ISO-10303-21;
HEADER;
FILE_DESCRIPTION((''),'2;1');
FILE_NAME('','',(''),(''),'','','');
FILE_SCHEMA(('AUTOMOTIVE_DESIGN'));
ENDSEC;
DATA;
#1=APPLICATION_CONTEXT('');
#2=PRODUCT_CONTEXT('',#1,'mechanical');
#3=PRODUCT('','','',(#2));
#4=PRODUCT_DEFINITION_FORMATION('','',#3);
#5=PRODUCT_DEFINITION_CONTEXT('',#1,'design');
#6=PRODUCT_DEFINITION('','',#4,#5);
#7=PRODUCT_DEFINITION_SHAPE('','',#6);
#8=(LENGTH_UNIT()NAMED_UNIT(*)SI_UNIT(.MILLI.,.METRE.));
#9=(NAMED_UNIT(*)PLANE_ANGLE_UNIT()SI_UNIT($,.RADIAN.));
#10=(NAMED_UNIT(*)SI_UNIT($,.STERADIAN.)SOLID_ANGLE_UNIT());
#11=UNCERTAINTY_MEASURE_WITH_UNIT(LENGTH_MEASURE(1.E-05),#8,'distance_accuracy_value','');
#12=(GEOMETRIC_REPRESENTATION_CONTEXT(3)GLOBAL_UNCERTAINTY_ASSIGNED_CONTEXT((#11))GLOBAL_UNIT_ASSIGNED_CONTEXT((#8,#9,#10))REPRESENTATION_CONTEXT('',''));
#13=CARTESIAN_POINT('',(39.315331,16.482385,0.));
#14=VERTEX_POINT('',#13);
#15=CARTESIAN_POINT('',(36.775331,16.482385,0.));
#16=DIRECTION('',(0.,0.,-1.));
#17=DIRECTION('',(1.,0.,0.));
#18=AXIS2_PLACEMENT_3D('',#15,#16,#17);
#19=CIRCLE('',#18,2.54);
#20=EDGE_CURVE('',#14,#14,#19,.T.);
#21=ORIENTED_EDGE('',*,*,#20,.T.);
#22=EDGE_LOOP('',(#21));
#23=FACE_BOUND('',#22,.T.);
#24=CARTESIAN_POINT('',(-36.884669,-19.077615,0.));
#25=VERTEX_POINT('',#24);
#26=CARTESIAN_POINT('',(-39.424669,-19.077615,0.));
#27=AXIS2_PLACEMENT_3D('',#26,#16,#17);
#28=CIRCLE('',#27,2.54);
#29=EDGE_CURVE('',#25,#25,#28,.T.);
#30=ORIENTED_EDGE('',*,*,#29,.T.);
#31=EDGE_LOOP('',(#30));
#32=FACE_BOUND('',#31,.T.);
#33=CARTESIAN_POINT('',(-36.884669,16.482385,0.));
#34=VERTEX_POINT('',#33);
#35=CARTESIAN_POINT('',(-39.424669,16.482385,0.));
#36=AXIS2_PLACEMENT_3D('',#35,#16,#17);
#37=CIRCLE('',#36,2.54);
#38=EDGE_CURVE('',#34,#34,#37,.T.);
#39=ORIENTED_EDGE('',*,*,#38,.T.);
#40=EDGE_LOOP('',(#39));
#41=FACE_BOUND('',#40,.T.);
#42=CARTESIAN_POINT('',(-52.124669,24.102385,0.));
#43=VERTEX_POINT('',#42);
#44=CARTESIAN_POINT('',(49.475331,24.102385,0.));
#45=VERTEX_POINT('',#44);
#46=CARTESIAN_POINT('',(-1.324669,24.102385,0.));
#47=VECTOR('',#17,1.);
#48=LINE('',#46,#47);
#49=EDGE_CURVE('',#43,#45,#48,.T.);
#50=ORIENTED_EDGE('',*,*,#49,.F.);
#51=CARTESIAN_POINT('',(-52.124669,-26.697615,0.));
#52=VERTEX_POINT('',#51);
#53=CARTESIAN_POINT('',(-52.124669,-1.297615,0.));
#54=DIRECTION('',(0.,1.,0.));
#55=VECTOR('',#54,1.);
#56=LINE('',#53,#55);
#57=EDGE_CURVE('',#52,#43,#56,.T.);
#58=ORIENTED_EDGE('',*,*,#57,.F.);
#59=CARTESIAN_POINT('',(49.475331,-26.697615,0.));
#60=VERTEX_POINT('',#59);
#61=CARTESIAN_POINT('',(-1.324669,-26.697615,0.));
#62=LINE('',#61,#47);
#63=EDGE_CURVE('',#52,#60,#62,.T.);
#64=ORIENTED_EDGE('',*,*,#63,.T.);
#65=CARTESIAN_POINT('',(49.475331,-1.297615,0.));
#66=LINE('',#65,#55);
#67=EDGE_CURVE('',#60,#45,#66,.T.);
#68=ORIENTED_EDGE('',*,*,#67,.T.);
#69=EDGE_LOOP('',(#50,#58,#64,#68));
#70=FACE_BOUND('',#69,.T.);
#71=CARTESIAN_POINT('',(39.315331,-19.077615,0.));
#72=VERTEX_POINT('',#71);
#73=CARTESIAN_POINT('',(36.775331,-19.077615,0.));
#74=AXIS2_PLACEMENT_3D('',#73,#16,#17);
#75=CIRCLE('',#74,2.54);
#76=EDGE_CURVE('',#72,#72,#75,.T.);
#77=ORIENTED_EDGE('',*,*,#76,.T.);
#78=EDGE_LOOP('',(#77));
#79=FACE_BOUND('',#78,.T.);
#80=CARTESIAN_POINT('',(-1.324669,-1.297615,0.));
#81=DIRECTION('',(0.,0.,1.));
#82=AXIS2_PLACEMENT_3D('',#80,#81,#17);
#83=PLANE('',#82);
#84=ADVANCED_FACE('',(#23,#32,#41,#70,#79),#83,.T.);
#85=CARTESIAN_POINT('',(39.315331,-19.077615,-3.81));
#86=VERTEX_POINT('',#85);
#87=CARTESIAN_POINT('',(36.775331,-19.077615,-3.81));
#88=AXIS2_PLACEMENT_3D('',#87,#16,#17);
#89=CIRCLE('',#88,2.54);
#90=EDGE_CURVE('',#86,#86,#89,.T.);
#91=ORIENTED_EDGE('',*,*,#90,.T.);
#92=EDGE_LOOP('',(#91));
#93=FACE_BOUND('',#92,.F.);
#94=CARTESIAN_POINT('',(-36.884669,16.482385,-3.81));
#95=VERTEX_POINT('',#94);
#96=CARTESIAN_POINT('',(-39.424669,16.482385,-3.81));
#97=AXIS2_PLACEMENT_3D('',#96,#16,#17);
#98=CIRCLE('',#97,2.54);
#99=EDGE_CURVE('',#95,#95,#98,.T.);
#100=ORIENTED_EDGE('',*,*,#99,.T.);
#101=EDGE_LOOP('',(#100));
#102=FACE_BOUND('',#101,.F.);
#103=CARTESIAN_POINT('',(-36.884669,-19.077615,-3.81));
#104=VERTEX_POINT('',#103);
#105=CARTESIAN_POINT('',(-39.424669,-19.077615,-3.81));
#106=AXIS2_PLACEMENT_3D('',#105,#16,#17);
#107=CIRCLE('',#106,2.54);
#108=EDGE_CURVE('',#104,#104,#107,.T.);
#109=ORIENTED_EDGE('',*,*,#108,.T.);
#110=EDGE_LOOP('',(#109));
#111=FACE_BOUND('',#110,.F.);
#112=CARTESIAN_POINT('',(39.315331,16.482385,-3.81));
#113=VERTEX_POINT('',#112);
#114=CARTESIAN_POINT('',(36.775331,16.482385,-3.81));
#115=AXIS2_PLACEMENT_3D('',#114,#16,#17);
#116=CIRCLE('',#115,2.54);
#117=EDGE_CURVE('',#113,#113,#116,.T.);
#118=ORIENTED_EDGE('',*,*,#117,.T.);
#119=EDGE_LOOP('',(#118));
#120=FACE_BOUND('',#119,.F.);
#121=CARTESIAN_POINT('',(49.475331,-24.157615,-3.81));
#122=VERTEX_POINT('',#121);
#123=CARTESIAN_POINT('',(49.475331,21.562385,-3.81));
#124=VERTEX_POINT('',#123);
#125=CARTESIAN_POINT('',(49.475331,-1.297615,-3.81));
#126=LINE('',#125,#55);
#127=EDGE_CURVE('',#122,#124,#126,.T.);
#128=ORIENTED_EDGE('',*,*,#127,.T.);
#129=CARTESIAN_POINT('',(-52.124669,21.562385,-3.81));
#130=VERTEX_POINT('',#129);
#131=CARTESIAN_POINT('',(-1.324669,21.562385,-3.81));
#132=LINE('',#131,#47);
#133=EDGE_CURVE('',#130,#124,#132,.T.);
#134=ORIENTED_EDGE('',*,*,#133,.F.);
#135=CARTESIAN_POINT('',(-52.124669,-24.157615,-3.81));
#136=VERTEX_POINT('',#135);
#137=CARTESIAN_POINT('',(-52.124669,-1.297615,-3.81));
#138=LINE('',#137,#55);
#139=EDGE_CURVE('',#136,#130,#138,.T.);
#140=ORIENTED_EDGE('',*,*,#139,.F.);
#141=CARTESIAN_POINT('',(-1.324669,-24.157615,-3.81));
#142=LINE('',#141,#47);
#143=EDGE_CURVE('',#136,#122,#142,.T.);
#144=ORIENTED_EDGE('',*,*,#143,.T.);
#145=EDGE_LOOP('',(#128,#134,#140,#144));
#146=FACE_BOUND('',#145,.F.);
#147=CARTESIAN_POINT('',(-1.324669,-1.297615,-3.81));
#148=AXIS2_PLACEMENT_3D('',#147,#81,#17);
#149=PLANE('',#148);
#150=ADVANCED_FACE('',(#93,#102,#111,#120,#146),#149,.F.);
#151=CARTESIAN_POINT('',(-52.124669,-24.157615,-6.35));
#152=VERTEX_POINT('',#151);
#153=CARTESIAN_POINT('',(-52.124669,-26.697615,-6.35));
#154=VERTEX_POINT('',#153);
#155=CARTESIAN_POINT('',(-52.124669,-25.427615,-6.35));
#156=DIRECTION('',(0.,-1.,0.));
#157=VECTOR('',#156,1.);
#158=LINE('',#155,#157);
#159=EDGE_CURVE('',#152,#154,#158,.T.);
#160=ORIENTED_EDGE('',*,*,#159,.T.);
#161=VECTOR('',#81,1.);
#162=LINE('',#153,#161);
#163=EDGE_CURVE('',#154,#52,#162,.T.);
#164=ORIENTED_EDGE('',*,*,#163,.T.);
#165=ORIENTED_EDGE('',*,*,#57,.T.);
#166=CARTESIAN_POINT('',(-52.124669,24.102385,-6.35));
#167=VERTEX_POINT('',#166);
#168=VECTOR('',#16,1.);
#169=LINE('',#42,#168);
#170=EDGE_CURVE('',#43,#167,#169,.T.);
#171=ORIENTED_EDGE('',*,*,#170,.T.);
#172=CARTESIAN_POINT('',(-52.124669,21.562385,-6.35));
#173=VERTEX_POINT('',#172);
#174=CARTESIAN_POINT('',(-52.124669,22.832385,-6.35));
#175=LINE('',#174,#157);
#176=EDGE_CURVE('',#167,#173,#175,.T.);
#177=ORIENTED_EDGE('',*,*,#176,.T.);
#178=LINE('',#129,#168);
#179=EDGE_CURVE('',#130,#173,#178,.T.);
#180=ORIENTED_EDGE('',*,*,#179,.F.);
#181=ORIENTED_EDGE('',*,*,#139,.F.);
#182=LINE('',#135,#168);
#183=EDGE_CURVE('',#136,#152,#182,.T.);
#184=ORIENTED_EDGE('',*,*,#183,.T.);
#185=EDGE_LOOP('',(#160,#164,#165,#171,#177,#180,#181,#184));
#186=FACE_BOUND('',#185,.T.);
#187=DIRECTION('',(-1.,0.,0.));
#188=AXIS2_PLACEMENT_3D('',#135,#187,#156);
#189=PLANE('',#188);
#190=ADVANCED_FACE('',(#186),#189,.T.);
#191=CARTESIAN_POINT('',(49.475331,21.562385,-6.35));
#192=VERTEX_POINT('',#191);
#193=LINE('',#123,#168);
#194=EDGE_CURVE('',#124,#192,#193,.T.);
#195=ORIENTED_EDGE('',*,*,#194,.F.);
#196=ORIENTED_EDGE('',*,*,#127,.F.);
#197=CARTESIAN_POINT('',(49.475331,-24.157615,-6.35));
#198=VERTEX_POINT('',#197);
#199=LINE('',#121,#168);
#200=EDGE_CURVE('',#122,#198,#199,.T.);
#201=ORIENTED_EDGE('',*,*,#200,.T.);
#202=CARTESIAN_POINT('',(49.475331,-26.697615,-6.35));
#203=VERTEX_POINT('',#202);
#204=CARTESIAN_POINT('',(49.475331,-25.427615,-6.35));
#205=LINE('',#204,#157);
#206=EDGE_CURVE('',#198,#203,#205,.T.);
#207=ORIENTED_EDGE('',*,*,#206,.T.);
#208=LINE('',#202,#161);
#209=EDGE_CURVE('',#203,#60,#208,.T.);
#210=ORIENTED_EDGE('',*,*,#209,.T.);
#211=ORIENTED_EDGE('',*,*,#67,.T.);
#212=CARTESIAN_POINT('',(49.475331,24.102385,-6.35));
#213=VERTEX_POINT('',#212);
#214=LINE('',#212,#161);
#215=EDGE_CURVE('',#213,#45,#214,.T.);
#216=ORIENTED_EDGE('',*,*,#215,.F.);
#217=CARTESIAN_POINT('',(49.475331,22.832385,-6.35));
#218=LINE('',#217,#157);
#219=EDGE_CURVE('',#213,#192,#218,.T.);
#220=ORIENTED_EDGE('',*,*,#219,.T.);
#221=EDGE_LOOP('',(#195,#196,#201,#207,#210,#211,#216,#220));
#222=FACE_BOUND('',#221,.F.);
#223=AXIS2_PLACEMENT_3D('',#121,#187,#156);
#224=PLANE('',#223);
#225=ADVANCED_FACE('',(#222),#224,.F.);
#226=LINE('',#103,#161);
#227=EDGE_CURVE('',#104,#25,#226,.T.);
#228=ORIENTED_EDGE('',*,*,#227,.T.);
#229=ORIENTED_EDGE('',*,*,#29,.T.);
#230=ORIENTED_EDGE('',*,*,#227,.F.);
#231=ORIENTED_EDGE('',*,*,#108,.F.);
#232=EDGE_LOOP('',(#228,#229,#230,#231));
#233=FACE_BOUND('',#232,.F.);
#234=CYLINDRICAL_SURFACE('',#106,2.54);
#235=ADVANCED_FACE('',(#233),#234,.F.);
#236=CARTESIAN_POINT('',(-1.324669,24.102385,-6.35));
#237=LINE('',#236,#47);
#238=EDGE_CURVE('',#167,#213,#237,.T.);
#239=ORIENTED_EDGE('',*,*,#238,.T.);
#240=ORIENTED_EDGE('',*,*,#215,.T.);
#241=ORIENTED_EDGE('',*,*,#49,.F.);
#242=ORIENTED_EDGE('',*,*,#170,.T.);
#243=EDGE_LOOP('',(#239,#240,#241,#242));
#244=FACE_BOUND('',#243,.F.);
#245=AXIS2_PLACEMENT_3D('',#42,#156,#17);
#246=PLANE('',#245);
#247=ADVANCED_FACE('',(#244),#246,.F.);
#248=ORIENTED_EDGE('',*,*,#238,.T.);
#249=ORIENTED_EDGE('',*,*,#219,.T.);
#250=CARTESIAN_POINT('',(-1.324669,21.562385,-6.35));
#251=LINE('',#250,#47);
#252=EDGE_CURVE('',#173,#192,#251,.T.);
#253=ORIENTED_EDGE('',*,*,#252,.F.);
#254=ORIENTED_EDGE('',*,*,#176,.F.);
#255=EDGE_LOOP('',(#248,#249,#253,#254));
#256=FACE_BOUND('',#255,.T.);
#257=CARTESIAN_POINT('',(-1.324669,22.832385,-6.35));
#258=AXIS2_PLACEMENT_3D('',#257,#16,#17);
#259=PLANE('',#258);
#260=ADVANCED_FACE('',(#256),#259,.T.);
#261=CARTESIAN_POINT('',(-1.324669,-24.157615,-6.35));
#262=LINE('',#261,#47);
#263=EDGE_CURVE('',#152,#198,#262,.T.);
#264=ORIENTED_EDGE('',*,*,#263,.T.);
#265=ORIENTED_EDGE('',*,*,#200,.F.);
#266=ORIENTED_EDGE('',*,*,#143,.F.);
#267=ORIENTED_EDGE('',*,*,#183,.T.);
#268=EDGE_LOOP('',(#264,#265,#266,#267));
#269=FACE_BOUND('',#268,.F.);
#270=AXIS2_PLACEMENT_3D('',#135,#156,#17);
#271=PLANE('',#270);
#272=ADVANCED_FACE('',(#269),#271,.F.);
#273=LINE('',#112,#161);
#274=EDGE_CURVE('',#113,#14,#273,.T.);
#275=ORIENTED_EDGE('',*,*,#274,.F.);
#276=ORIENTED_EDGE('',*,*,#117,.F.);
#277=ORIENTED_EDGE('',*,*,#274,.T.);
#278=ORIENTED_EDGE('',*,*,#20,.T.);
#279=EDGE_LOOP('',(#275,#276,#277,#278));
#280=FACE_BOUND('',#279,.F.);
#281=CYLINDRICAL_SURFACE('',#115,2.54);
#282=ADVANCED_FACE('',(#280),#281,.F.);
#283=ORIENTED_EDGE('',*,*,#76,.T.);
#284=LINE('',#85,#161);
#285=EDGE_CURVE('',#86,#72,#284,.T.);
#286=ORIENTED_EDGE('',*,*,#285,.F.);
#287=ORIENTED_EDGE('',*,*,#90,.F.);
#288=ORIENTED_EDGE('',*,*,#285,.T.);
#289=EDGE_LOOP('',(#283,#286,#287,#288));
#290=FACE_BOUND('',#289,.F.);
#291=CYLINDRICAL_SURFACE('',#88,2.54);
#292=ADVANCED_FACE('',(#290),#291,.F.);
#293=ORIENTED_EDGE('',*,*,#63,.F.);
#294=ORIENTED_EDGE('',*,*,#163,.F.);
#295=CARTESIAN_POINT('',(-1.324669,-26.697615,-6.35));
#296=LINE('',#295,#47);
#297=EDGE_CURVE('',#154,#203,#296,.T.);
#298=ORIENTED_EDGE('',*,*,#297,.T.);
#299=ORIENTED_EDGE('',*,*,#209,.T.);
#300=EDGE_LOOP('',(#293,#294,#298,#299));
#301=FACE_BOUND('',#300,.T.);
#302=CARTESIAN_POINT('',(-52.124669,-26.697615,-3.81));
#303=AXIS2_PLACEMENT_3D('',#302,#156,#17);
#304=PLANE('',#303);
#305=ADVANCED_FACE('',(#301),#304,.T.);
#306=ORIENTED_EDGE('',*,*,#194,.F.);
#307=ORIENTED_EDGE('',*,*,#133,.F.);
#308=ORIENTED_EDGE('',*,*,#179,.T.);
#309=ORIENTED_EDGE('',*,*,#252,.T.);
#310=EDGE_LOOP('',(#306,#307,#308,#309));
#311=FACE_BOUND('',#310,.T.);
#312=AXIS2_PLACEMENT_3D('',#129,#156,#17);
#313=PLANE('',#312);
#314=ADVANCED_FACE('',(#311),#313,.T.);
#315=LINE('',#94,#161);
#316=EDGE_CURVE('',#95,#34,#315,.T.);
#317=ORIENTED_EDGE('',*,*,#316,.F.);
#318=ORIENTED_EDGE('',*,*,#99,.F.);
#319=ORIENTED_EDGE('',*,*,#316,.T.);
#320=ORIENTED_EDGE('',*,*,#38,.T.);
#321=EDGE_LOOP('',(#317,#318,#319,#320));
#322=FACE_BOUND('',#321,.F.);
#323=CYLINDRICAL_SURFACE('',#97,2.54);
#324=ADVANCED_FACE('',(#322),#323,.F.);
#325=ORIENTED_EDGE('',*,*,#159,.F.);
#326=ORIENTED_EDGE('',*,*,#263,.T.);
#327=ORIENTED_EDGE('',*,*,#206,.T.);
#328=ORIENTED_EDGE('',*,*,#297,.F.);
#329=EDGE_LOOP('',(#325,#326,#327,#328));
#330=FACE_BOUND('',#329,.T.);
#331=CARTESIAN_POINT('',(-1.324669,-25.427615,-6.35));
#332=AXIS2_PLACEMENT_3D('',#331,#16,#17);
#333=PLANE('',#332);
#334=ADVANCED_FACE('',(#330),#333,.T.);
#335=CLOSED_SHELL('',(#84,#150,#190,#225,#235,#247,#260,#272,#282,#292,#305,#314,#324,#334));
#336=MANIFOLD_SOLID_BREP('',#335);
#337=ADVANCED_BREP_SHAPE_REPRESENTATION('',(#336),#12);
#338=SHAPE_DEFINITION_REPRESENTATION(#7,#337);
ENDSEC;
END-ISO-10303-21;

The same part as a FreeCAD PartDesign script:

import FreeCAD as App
import Part
import Sketcher
from FreeCAD import Vector
Q = App.Units.Quantity

doc = App.newDocument("Part")
body = doc.addObject("PartDesign::Body", "Body")

# Sketch on XY plane
sketch1 = body.newObject("Sketcher::SketchObject", "Sketch")
sketch1.AttachmentSupport = (doc.getObject("XY_Plane"), [""])
sketch1.MapMode = "FlatFace"
sketch1.addGeometry(Part.LineSegment(Vector(-52, 24, 0), Vector(-52, -27, 0)), False)
sketch1.addGeometry(Part.LineSegment(Vector(-52, -27, 0), Vector(49, -27, 0)), False)
sketch1.addGeometry(Part.LineSegment(Vector(49, -27, 0), Vector(49, 24, 0)), False)
sketch1.addGeometry(Part.LineSegment(Vector(49, 24, 0), Vector(-52, 24, 0)), False)
sketch1.addConstraint(Sketcher.Constraint("Coincident", 0, 2, 1, 1))
sketch1.addConstraint(Sketcher.Constraint("Coincident", 1, 2, 2, 1))
sketch1.addConstraint(Sketcher.Constraint("Coincident", 2, 2, 3, 1))
sketch1.addConstraint(Sketcher.Constraint("Coincident", 3, 2, 0, 1))
sketch1.addConstraint(Sketcher.Constraint("Vertical", 0))
sketch1.addConstraint(Sketcher.Constraint("Horizontal", 1))
sketch1.addConstraint(Sketcher.Constraint("Vertical", 2))
sketch1.addConstraint(Sketcher.Constraint("Horizontal", 3))
sketch1.addConstraint(Sketcher.Constraint("DistanceX", 1, 1, 1, 2, Q("4 in")))
sketch1.addConstraint(Sketcher.Constraint("DistanceY", 0, 2, 0, 1, Q("2 in")))
sketch1.addConstraint(Sketcher.Constraint("DistanceX", 0, 2, -1, 1, 52.124669))
sketch1.addConstraint(Sketcher.Constraint("DistanceY", 0, 2, -1, 1, 26.697615))
pad1 = body.newObject("PartDesign::Pad", "Pad")
pad1.Profile = sketch1
pad1.Length = Q("0.15 in")
pad1.Reversed = True

# Sketch on XY plane
sketch2 = body.newObject("Sketcher::SketchObject", "Sketch001")
sketch2.AttachmentSupport = (doc.getObject("XY_Plane"), [""])
sketch2.MapMode = "FlatFace"
sketch2.AttachmentOffset = App.Placement(Vector(0, 0, -0.15 * 25.4), App.Rotation())
sketch2.addGeometry(Part.LineSegment(Vector(-52.1, -26.7, 0), Vector(-52.1, -24.2, 0)), False)
sketch2.addGeometry(Part.LineSegment(Vector(-52.1, -24.2, 0), Vector(49.5, -24.2, 0)), False)
sketch2.addGeometry(Part.LineSegment(Vector(49.5, -24.2, 0), Vector(49.5, -26.7, 0)), False)
sketch2.addGeometry(Part.LineSegment(Vector(49.5, -26.7, 0), Vector(-52.1, -26.7, 0)), False)
sketch2.addGeometry(Part.LineSegment(Vector(-52.1, 21.6, 0), Vector(-52.1, 24.1, 0)), False)
sketch2.addGeometry(Part.LineSegment(Vector(-52.1, 24.1, 0), Vector(49.5, 24.1, 0)), False)
sketch2.addGeometry(Part.LineSegment(Vector(49.5, 24.1, 0), Vector(49.5, 21.6, 0)), False)
sketch2.addGeometry(Part.LineSegment(Vector(49.5, 21.6, 0), Vector(-52.1, 21.6, 0)), False)
sketch2.addConstraint(Sketcher.Constraint("Coincident", 0, 2, 1, 1))
sketch2.addConstraint(Sketcher.Constraint("Coincident", 1, 2, 2, 1))
sketch2.addConstraint(Sketcher.Constraint("Coincident", 2, 2, 3, 1))
sketch2.addConstraint(Sketcher.Constraint("Coincident", 3, 2, 0, 1))
sketch2.addConstraint(Sketcher.Constraint("Coincident", 4, 2, 5, 1))
sketch2.addConstraint(Sketcher.Constraint("Coincident", 5, 2, 6, 1))
sketch2.addConstraint(Sketcher.Constraint("Coincident", 6, 2, 7, 1))
sketch2.addConstraint(Sketcher.Constraint("Coincident", 7, 2, 4, 1))
sketch2.addConstraint(Sketcher.Constraint("Vertical", 0))
sketch2.addConstraint(Sketcher.Constraint("Horizontal", 1))
sketch2.addConstraint(Sketcher.Constraint("Vertical", 2))
sketch2.addConstraint(Sketcher.Constraint("Horizontal", 3))
sketch2.addConstraint(Sketcher.Constraint("Vertical", 4))
sketch2.addConstraint(Sketcher.Constraint("Horizontal", 5))
sketch2.addConstraint(Sketcher.Constraint("Vertical", 6))
sketch2.addConstraint(Sketcher.Constraint("Horizontal", 7))
sketch2.addConstraint(Sketcher.Constraint("Vertical", 3, 2, 4, 2))
sketch2.addConstraint(Sketcher.Constraint("Vertical", 2, 2, 5, 2))
sketch2.addConstraint(Sketcher.Constraint("Equal", 2, 4))
sketch2.addConstraint(Sketcher.Constraint("DistanceX", 1, 1, 1, 2, Q("4 in")))
sketch2.addConstraint(Sketcher.Constraint("DistanceY", 0, 1, 0, 2, Q("0.1 in")))
sketch2.addConstraint(Sketcher.Constraint("DistanceY", 3, 2, 4, 2, Q("2 in")))
sketch2.addConstraint(Sketcher.Constraint("DistanceX", 0, 2, -1, 1, 52.124669))
sketch2.addConstraint(Sketcher.Constraint("DistanceY", 0, 2, -1, 1, 24.157615))
pad2 = body.newObject("PartDesign::Pad", "Pad001")
pad2.Profile = sketch2
pad2.Length = Q("0.1 in")
pad2.Reversed = True

# Sketch on XY plane
sketch3 = body.newObject("Sketcher::SketchObject", "Sketch002")
sketch3.AttachmentSupport = (doc.getObject("XY_Plane"), [""])
sketch3.MapMode = "FlatFace"
sketch3.AttachmentOffset = App.Placement(Vector(0, 0, -0.15 * 25.4), App.Rotation())
sketch3.addGeometry(Part.Circle(Vector(-39.4, -19.1, 0), Vector(0, 0, 1), 2.5), False)
sketch3.addGeometry(Part.Circle(Vector(-39.4, 16.5, 0), Vector(0, 0, 1), 2.5), False)
sketch3.addGeometry(Part.Circle(Vector(36.8, -19.1, 0), Vector(0, 0, 1), 2.5), False)
sketch3.addGeometry(Part.Circle(Vector(36.8, 16.5, 0), Vector(0, 0, 1), 2.5), False)
sketch3.addConstraint(Sketcher.Constraint("Equal", 0, 1))
sketch3.addConstraint(Sketcher.Constraint("Equal", 1, 2))
sketch3.addConstraint(Sketcher.Constraint("Equal", 2, 3))
sketch3.addConstraint(Sketcher.Constraint("Horizontal", 0, 3, 2, 3))
sketch3.addConstraint(Sketcher.Constraint("Horizontal", 1, 3, 3, 3))
sketch3.addConstraint(Sketcher.Constraint("Vertical", 0, 3, 1, 3))
sketch3.addConstraint(Sketcher.Constraint("Vertical", 2, 3, 3, 3))
sketch3.addConstraint(Sketcher.Constraint("Diameter", 0, Q("0.2 in")))
sketch3.addConstraint(Sketcher.Constraint("DistanceX", 0, 3, 2, 3, Q("3 in")))
sketch3.addConstraint(Sketcher.Constraint("DistanceY", 0, 3, 1, 3, Q("1.4 in")))
sketch3.addConstraint(Sketcher.Constraint("DistanceX", 0, 3, -1, 1, 39.424669))
sketch3.addConstraint(Sketcher.Constraint("DistanceY", 0, 3, -1, 1, 19.077615))
pocket1 = body.newObject("PartDesign::Pocket", "Pocket")
pocket1.Profile = sketch3
pocket1.Length = Q("0.15 in")
pocket1.Reversed = True

doc.recompute()
